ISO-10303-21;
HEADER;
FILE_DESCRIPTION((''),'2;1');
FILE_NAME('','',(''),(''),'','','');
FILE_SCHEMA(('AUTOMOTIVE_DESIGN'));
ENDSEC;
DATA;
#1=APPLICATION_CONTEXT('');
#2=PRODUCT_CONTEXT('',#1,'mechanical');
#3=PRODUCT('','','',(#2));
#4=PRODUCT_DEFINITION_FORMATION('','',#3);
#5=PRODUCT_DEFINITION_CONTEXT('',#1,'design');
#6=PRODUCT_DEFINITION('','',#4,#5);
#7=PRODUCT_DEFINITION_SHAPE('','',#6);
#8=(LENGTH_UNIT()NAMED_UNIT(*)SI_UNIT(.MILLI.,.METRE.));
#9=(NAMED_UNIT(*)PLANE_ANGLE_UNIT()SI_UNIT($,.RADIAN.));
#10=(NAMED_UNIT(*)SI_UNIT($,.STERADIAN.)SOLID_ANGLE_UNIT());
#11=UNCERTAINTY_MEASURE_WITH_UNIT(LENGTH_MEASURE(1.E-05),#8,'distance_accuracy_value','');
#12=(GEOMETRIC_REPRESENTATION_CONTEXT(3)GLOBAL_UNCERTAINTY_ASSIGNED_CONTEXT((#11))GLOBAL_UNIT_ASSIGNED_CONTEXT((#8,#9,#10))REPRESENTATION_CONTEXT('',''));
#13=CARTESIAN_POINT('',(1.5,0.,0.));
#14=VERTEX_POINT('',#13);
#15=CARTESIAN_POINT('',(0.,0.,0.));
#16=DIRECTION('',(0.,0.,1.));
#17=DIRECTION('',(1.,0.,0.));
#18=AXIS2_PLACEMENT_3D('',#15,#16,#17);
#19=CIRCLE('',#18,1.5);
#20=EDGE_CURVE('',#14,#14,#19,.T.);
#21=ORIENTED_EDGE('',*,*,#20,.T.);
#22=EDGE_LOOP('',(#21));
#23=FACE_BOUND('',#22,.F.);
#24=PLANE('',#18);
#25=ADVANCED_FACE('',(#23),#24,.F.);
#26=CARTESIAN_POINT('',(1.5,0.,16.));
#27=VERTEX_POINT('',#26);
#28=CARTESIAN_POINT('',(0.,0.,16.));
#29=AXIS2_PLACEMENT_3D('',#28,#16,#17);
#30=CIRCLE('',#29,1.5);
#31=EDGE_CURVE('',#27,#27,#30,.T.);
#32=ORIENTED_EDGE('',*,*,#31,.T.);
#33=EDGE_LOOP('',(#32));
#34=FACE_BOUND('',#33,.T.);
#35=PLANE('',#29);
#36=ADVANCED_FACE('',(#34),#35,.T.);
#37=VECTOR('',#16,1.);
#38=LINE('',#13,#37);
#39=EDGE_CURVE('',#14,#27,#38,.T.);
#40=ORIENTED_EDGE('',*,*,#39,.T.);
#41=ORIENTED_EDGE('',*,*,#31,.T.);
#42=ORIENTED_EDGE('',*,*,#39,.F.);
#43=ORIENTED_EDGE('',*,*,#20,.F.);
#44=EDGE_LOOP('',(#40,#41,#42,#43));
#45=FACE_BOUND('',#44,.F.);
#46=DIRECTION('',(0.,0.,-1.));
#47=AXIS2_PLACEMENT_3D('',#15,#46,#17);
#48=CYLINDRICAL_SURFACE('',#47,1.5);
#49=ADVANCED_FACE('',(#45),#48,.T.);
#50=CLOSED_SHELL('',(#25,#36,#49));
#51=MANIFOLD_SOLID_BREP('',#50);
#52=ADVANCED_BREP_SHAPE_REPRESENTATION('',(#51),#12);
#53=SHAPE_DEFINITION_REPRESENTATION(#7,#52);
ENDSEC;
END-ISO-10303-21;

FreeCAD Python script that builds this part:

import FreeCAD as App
import Part
import Sketcher

V = App.Vector
Q = App.Units.Quantity

doc = App.newDocument("Part")
body = doc.addObject("PartDesign::Body", "Body")

# Sketch on XY plane
sketch1 = body.newObject("Sketcher::SketchObject", "Sketch")
sketch1.AttachmentSupport = (doc.getObject("XY_Plane"), [""])
sketch1.MapMode = "FlatFace"
sketch1.addGeometry(Part.Circle(V(0, 0, 0), V(0, 0, 1), 1.5), False)
sketch1.addConstraint([
    Sketcher.Constraint("Coincident", 0, 3, -1, 1),
    Sketcher.Constraint("Diameter", 0, Q("3 mm")),
])
pad1 = body.newObject("PartDesign::Pad", "Pad")
pad1.Profile = sketch1
pad1.Length = 16

doc.recompute()
